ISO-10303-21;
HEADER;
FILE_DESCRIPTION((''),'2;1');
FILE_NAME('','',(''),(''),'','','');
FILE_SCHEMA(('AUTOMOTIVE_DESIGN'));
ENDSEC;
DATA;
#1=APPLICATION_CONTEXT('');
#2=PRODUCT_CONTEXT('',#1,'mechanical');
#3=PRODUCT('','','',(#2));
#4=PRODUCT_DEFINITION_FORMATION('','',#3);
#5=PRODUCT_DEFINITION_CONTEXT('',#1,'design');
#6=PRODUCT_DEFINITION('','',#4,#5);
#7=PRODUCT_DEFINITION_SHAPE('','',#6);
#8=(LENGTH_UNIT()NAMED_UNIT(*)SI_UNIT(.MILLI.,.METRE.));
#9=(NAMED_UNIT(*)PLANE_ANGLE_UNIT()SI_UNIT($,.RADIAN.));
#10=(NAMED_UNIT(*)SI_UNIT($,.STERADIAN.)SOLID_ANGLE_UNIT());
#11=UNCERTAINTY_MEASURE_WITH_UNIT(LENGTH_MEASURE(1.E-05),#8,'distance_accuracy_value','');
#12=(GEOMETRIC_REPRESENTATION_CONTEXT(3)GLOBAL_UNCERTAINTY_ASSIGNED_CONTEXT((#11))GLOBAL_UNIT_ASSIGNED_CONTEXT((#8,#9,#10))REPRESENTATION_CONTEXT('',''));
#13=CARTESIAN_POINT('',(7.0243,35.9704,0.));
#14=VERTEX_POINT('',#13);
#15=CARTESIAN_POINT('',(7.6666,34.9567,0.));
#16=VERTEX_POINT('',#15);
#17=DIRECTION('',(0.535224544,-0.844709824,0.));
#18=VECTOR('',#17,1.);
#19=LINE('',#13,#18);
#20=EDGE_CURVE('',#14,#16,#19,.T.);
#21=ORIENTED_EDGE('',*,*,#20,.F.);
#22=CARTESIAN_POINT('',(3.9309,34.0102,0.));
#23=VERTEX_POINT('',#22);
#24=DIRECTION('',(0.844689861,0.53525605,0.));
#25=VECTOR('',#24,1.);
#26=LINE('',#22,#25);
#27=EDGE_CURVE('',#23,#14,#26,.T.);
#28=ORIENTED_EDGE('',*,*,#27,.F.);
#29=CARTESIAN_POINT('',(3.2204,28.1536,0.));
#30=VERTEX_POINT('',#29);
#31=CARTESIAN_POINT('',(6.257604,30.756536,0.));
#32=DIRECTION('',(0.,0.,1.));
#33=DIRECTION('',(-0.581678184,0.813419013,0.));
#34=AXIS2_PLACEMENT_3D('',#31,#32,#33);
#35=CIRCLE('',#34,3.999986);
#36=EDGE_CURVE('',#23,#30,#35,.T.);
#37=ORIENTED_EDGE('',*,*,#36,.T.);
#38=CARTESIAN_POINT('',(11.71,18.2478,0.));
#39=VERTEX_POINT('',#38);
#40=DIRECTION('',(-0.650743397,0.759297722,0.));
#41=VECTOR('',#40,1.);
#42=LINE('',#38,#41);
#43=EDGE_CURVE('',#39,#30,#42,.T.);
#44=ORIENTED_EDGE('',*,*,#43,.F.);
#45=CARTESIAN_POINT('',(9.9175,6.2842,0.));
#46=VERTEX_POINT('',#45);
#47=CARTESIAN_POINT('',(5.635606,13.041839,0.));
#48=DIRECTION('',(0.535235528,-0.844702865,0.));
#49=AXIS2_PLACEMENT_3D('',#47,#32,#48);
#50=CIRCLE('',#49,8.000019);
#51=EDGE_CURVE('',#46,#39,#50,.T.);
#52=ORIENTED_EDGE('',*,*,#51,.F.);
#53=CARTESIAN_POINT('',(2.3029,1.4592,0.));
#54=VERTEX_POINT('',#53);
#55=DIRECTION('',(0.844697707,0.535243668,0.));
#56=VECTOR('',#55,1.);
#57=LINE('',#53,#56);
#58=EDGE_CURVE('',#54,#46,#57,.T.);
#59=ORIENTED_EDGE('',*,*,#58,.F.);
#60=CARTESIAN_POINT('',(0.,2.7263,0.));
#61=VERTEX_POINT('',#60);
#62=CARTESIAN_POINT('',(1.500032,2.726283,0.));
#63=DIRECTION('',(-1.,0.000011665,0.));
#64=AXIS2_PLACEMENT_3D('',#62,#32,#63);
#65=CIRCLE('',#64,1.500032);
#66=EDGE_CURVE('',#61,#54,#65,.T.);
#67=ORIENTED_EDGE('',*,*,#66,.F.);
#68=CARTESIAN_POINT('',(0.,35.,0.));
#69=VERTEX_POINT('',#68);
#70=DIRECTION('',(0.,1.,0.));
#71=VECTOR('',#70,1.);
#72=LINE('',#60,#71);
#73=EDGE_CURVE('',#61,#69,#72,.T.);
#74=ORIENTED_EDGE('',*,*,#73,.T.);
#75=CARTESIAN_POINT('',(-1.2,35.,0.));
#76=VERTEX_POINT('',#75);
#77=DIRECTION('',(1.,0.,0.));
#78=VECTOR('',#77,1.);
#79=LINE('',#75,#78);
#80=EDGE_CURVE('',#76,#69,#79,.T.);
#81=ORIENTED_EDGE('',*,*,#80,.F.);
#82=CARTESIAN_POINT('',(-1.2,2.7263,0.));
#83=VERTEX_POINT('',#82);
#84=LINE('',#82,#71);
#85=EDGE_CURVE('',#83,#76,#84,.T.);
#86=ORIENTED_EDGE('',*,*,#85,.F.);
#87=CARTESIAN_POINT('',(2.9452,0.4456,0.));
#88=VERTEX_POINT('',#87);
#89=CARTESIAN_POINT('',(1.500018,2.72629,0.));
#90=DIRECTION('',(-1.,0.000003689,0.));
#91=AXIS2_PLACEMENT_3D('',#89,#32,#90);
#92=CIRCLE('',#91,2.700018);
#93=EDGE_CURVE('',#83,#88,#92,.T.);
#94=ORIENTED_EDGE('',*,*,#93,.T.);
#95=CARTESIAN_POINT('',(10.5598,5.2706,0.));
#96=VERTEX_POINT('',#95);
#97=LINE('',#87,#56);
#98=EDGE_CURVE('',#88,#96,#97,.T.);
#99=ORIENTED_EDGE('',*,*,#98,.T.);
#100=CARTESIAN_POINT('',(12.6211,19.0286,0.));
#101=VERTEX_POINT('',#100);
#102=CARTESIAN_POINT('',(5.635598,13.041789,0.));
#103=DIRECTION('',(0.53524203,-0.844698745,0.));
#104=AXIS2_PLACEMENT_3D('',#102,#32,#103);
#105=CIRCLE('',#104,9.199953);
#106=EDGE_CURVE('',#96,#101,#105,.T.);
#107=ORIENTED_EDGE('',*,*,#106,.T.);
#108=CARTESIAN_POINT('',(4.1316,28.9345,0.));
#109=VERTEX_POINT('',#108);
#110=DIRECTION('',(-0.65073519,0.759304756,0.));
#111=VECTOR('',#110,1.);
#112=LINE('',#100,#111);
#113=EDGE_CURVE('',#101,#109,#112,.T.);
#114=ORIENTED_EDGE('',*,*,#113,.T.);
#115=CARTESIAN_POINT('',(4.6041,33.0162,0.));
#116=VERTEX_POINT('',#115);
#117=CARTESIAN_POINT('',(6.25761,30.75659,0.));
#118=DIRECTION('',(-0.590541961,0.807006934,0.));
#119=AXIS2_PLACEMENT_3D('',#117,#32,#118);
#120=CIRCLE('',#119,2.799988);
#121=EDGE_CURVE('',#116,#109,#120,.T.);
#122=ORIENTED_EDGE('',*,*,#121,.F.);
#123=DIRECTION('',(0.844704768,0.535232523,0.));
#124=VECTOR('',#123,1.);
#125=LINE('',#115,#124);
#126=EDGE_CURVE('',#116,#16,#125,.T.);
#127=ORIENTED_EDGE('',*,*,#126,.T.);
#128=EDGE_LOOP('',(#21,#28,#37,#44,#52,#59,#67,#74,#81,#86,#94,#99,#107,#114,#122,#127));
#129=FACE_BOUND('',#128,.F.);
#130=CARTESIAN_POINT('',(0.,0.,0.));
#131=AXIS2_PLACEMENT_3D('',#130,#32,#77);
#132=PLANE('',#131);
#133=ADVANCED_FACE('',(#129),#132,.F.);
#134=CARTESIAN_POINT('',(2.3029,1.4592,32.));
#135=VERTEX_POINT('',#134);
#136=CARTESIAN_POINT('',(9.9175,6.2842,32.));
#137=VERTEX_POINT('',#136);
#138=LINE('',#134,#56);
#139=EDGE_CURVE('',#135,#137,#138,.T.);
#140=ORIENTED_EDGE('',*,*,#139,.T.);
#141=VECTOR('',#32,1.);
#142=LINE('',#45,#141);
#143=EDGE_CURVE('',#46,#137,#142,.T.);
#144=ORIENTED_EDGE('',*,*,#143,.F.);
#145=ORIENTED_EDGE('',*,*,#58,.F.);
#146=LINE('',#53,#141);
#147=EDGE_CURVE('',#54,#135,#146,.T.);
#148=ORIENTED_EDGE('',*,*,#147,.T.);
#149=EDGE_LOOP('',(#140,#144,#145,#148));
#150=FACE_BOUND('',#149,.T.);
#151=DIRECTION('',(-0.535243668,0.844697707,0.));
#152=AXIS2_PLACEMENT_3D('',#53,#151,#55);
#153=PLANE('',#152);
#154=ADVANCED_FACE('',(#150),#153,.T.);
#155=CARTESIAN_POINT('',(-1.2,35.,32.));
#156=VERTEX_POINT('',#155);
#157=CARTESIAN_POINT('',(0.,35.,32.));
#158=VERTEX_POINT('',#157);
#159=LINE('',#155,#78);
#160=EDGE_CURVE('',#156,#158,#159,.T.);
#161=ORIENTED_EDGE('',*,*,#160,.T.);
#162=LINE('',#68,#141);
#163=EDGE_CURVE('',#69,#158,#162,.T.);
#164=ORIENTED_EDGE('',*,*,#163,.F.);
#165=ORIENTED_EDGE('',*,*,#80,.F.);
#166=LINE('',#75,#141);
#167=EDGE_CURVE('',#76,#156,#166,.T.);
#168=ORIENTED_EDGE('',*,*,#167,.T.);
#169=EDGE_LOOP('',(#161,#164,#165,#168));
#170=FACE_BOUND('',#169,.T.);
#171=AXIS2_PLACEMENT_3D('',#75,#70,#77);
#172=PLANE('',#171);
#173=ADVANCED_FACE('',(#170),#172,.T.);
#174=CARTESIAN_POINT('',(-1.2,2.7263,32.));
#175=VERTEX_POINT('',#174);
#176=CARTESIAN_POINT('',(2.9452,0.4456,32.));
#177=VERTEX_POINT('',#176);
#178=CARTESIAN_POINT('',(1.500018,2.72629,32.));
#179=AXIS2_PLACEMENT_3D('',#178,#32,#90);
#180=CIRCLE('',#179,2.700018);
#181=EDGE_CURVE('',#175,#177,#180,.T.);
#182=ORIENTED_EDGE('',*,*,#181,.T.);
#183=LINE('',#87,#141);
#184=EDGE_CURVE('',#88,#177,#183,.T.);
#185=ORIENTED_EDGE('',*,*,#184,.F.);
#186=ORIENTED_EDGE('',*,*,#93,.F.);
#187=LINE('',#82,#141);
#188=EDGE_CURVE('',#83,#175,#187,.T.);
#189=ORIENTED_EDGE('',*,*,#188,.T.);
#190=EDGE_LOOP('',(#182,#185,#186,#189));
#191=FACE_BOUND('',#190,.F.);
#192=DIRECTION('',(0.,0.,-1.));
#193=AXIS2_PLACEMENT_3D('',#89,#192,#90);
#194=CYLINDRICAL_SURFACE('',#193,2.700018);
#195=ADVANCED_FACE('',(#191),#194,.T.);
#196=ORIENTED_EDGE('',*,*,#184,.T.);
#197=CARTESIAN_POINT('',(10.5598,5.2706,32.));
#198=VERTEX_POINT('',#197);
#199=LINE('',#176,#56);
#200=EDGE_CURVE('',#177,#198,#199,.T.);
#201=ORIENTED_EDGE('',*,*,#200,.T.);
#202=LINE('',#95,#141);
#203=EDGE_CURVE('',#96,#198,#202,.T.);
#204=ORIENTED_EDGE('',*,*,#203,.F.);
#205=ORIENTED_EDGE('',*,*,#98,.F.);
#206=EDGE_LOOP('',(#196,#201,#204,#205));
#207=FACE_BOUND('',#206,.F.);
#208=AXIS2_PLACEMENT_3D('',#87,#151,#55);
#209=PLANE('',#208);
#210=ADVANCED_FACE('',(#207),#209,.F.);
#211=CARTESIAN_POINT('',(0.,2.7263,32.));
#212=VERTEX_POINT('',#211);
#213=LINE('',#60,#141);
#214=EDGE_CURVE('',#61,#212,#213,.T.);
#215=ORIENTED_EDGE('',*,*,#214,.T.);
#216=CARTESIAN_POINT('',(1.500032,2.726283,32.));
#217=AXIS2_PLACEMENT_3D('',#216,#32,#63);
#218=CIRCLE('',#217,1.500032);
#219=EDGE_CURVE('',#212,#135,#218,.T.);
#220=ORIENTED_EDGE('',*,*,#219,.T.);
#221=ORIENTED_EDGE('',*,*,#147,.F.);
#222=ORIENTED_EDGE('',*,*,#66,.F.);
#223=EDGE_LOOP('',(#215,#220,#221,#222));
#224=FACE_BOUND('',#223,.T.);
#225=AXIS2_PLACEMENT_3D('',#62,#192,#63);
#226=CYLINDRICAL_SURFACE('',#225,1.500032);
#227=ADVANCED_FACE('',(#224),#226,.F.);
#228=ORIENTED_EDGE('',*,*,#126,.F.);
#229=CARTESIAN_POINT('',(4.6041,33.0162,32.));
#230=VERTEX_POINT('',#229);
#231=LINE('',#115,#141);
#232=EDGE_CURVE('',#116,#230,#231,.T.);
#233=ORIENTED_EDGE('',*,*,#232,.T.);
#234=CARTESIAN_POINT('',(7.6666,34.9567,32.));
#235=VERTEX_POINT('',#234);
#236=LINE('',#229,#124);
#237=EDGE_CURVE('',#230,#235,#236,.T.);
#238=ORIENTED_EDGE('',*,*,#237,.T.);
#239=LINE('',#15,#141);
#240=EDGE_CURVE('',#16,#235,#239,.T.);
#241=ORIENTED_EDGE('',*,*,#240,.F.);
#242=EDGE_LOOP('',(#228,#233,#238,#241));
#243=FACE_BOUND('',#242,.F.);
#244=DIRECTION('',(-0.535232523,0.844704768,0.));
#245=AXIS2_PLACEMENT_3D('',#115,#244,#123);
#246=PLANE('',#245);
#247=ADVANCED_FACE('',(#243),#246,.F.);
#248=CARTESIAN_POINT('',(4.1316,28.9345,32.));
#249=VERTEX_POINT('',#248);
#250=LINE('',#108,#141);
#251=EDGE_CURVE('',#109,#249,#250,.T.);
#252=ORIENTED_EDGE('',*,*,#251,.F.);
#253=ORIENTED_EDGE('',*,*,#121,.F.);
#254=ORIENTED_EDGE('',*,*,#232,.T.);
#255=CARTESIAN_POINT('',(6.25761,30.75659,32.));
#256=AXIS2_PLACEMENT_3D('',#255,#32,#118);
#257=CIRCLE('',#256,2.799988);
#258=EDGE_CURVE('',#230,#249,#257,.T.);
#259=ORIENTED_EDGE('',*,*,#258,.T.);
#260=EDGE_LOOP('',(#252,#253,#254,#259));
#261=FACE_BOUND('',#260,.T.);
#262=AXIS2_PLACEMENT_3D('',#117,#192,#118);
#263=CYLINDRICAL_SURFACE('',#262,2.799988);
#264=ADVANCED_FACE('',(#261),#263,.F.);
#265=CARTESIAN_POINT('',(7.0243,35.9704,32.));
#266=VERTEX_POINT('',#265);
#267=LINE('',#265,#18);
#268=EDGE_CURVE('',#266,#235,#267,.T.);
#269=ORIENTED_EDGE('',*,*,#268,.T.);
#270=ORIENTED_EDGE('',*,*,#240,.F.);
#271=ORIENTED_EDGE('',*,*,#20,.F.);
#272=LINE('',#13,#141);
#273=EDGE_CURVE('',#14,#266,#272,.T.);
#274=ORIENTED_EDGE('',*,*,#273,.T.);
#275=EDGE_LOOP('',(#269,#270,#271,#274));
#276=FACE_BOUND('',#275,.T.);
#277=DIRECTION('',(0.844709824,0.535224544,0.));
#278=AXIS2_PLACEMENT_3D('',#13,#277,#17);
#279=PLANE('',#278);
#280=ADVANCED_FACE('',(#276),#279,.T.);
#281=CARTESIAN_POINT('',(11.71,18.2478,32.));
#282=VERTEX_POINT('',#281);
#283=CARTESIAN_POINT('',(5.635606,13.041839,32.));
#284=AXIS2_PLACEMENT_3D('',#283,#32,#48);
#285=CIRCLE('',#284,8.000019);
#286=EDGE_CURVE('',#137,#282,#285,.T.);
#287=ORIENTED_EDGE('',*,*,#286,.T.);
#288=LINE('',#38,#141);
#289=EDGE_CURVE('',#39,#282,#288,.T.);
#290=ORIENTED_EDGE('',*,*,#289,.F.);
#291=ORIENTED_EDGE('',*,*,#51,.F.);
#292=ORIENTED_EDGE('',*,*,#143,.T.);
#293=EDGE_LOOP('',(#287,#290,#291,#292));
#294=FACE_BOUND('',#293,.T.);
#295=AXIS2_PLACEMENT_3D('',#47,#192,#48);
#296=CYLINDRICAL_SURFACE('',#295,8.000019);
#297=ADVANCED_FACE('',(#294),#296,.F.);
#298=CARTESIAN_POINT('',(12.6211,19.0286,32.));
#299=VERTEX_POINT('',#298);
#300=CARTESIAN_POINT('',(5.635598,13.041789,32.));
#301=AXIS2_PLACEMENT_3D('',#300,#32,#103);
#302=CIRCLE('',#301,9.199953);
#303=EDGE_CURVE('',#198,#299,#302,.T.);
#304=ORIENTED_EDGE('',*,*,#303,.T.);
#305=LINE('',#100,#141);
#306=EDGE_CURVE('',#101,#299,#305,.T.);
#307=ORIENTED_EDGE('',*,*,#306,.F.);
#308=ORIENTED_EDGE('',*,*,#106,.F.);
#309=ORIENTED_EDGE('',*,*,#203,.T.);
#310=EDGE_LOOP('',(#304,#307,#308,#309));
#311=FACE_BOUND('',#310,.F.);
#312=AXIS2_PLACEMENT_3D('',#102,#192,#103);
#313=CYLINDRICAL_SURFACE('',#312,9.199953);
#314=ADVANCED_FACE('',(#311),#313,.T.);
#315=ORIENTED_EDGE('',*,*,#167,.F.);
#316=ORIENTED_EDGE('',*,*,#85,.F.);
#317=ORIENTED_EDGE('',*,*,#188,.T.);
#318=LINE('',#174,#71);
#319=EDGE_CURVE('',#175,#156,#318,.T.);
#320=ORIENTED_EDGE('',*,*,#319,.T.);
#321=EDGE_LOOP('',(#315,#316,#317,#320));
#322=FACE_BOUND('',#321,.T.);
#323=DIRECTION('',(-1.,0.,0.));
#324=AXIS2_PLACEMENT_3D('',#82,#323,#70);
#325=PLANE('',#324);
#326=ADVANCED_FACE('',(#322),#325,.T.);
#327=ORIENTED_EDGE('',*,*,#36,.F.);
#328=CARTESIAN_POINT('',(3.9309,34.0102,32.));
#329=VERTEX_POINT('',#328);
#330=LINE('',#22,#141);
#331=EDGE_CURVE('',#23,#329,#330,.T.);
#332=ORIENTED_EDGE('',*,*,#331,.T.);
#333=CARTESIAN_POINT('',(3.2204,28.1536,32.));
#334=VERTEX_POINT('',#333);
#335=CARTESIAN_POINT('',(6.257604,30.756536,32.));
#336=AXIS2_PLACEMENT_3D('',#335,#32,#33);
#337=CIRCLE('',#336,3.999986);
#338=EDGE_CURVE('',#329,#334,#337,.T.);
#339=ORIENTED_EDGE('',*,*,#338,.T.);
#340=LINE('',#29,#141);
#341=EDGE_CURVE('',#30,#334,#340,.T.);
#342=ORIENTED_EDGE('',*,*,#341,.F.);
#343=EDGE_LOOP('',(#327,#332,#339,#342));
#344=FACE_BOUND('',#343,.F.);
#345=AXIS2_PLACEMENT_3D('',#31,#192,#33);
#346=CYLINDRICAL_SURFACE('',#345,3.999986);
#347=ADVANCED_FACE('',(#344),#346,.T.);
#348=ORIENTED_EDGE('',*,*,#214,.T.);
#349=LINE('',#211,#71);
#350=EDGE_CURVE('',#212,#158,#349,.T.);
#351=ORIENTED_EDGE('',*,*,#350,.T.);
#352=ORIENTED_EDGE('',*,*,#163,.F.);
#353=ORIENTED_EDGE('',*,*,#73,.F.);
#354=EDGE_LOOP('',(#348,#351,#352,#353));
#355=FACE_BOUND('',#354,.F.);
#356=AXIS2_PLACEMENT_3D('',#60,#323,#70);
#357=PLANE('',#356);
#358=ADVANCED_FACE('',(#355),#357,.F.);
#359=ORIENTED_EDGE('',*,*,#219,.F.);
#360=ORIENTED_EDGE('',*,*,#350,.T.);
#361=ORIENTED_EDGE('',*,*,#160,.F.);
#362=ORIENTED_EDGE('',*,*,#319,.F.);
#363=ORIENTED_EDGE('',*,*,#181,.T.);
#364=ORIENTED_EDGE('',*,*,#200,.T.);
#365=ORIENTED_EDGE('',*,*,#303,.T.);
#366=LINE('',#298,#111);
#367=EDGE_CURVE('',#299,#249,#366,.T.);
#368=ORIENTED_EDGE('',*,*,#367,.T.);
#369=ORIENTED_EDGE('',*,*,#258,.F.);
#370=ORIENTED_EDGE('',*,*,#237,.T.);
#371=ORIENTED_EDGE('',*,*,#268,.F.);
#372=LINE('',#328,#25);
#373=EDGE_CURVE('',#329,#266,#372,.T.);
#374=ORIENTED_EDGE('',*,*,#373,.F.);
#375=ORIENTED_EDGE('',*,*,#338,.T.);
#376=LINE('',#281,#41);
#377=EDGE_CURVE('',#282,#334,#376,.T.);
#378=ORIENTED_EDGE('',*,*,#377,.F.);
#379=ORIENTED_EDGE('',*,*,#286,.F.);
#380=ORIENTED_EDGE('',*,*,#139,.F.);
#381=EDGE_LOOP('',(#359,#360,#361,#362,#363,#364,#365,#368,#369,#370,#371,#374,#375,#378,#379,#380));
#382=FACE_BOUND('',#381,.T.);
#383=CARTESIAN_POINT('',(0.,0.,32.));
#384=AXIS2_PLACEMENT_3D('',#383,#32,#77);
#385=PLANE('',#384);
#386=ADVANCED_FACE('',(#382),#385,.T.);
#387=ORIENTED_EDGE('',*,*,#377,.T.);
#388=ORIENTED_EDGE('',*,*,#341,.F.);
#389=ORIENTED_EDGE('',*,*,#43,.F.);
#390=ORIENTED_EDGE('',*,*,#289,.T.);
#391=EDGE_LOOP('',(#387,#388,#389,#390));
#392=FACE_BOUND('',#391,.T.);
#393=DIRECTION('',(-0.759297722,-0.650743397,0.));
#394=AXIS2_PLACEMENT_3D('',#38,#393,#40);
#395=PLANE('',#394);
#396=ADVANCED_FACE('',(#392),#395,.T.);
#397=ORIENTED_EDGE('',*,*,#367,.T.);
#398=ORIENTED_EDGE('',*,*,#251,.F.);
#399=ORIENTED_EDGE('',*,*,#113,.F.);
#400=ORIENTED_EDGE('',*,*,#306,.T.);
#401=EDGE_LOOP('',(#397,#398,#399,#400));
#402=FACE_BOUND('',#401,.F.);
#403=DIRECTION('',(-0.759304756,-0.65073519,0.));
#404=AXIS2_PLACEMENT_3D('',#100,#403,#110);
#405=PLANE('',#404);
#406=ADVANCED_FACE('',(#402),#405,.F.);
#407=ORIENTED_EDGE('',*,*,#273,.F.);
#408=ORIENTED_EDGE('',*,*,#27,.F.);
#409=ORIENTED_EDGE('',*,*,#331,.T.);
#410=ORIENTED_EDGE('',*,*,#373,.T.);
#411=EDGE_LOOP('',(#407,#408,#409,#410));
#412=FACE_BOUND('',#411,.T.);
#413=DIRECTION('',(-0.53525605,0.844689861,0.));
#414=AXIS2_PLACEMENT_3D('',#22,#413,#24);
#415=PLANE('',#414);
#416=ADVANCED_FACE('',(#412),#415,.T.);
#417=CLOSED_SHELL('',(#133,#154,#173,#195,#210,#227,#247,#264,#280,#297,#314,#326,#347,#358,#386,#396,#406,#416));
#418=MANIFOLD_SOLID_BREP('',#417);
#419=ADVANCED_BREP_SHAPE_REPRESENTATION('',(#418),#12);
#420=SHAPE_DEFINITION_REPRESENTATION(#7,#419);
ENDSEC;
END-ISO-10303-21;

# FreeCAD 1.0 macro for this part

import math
import FreeCAD as App
import Part
import Sketcher
from FreeCAD import Vector
Q = App.Units.Quantity

doc = App.newDocument("Part")
body = doc.addObject("PartDesign::Body", "Body")

# Sketch on XY plane
sketch1 = body.newObject("Sketcher::SketchObject", "Sketch")
sketch1.AttachmentSupport = (doc.getObject("XY_Plane"), [""])
sketch1.MapMode = "FlatFace"
sketch1.addGeometry(Part.ArcOfCircle(Part.Circle(Vector(1.5, 2.7263, 0), Vector(0, 0, 1), 1.5), math.radians(180), math.radians(302.360458)), False)
sketch1.addGeometry(Part.LineSegment(Vector(0, 2.7263, 0), Vector(0, 35, 0)), False)
sketch1.addGeometry(Part.LineSegment(Vector(0, 35, 0), Vector(-1.2, 35, 0)), False)
sketch1.addGeometry(Part.LineSegment(Vector(-1.2, 35, 0), Vector(-1.2, 2.7263, 0)), False)
sketch1.addGeometry(Part.ArcOfCircle(Part.Circle(Vector(1.5, 2.7263, 0), Vector(0, 0, 1), 2.7), math.radians(180), math.radians(302.361009)), False)
sketch1.addGeometry(Part.LineSegment(Vector(2.9452, 0.4456, 0), Vector(10.5598, 5.2706, 0)), False)
sketch1.addGeometry(Part.ArcOfCircle(Part.Circle(Vector(5.6356, 13.0418, 0), Vector(0, 0, 1), 9.199962), math.radians(-57.639719), math.radians(40.597647)), False)
sketch1.addGeometry(Part.LineSegment(Vector(12.6211, 19.0286, 0), Vector(4.1316, 28.9345, 0)), False)
sketch1.addGeometry(Part.ArcOfCircle(Part.Circle(Vector(6.2576, 30.7565, 0), Vector(0, 0, 1), 2.800055), math.radians(126.194214), math.radians(220.596856)), False)
sketch1.addGeometry(Part.LineSegment(Vector(4.6041, 33.0162, 0), Vector(7.6666, 34.9567, 0)), False)
sketch1.addGeometry(Part.LineSegment(Vector(7.6666, 34.9567, 0), Vector(7.0243, 35.9704, 0)), False)
sketch1.addGeometry(Part.LineSegment(Vector(7.0243, 35.9704, 0), Vector(3.9309, 34.0102, 0)), False)
sketch1.addGeometry(Part.ArcOfCircle(Part.Circle(Vector(6.2576, 30.7565, 0), Vector(0, 0, 1), 4.000012), math.radians(125.568316), math.radians(220.596789)), False)
sketch1.addGeometry(Part.LineSegment(Vector(3.2204, 28.1536, 0), Vector(11.71, 18.2478, 0)), False)
sketch1.addGeometry(Part.ArcOfCircle(Part.Circle(Vector(5.6356, 13.0418, 0), Vector(0, 0, 1), 7.999989), math.radians(-57.639931), math.radians(40.597877)), False)
sketch1.addGeometry(Part.LineSegment(Vector(9.9175, 6.2842, 0), Vector(2.3029, 1.4592, 0)), False)
sketch1.addConstraint(Sketcher.Constraint("Coincident", 0, 1, 1, 1))
sketch1.addConstraint(Sketcher.Constraint("Coincident", 1, 2, 2, 1))
sketch1.addConstraint(Sketcher.Constraint("Coincident", 2, 2, 3, 1))
sketch1.addConstraint(Sketcher.Constraint("Coincident", 3, 2, 4, 1))
sketch1.addConstraint(Sketcher.Constraint("Coincident", 4, 2, 5, 1))
sketch1.addConstraint(Sketcher.Constraint("Coincident", 5, 2, 6, 1))
sketch1.addConstraint(Sketcher.Constraint("Coincident", 6, 2, 7, 1))
sketch1.addConstraint(Sketcher.Constraint("Coincident", 7, 2, 8, 2))
sketch1.addConstraint(Sketcher.Constraint("Coincident", 8, 1, 9, 1))
sketch1.addConstraint(Sketcher.Constraint("Coincident", 9, 2, 10, 1))
sketch1.addConstraint(Sketcher.Constraint("Coincident", 10, 2, 11, 1))
sketch1.addConstraint(Sketcher.Constraint("Coincident", 11, 2, 12, 1))
sketch1.addConstraint(Sketcher.Constraint("Coincident", 12, 2, 13, 1))
sketch1.addConstraint(Sketcher.Constraint("Coincident", 13, 2, 14, 2))
sketch1.addConstraint(Sketcher.Constraint("Coincident", 14, 1, 15, 1))
sketch1.addConstraint(Sketcher.Constraint("Coincident", 15, 2, 0, 2))
sketch1.addConstraint(Sketcher.Constraint("Vertical", 1))
sketch1.addConstraint(Sketcher.Constraint("Horizontal", 2))
sketch1.addConstraint(Sketcher.Constraint("Vertical", 3))
sketch1.addConstraint(Sketcher.Constraint("Coincident", 4, 3, 0, 3))
sketch1.addConstraint(Sketcher.Constraint("Coincident", 12, 3, 8, 3))
sketch1.addConstraint(Sketcher.Constraint("Coincident", 14, 3, 6, 3))
sketch1.addConstraint(Sketcher.Constraint("PointOnObject", 0, 1, -2))
sketch1.addConstraint(Sketcher.Constraint("Radius", 12, Q("4 mm")))
sketch1.addConstraint(Sketcher.Constraint("Radius", 14, Q("8 mm")))
sketch1.addConstraint(Sketcher.Constraint("Radius", 0, Q("1.5 mm")))
sketch1.addConstraint(Sketcher.Constraint("DistanceX", 2, 2, 2, 1, Q("1.2 mm")))
sketch1.addConstraint(Sketcher.Constraint("DistanceY", -1, 1, 1, 2, Q("35 mm")))
sketch1.addConstraint(Sketcher.Constraint("Distance", 10, Q("1.2 mm")))
sketch1.addConstraint(Sketcher.Constraint("Radius", 6, Q("9.2 mm")))
sketch1.addConstraint(Sketcher.Constraint("Radius", 8, Q("2.8 mm")))
sketch1.addConstraint(Sketcher.Constraint("DistanceX", -1, 1, 13, 2, Q("11.71 mm")))
sketch1.addConstraint(Sketcher.Constraint("Distance", 7, Q("13.046 mm")))
sketch1.addConstraint(Sketcher.Constraint("Distance", 13, Q("13.046 mm")))
sketch1.addConstraint(Sketcher.Constraint("DistanceY", 1, 1, 1, 2, Q("32.2737 mm")))
sketch1.addConstraint(Sketcher.Constraint("DistanceY", 3, 2, 3, 1, Q("32.2737 mm")))
sketch1.addConstraint(Sketcher.Constraint("DistanceX", -1, 1, 6, 2, Q("12.621 mm")))
sketch1.addConstraint(Sketcher.Constraint("DistanceX", -1, 1, 8, 1, Q("4.604 mm")))
sketch1.addConstraint(Sketcher.Constraint("DistanceX", -1, 1, 11, 2, Q("3.931 mm")))
sketch1.addConstraint(Sketcher.Constraint("DistanceX", -1, 1, 15, 2, Q("2.303 mm")))
sketch1.addConstraint(Sketcher.Constraint("DistanceX", 6, 3, 8, 3, Q("0.622 mm")))
sketch1.addConstraint(Sketcher.Constraint("DistanceY", 4, 2, 5, 2, Q("4.825 mm")))
sketch1.addConstraint(Sketcher.Constraint("DistanceY", 6, 2, 8, 3, Q("11.728 mm")))
sketch1.addConstraint(Sketcher.Constraint("DistanceY", 5, 2, 6, 2, Q("13.758 mm")))
sketch1.addConstraint(Sketcher.Constraint("DistanceX", 7, 2, 8, 3, Q("2.126 mm")))
sketch1.addConstraint(Sketcher.Constraint("DistanceX", 8, 3, 9, 2, Q("1.409 mm")))
sketch1.addConstraint(Sketcher.Constraint("DistanceY", 8, 3, 10, 2, Q("5.214 mm")))
sketch1.addConstraint(Sketcher.Constraint("DistanceX", 6, 3, 14, 1, Q("4.282 mm")))
sketch1.addConstraint(Sketcher.Constraint("DistanceY", 0, 3, 14, 1, Q("3.558 mm")))
sketch1.addConstraint(Sketcher.Constraint("DistanceY", 15, 2, 0, 1, Q("1.267 mm")))
sketch1.addConstraint(Sketcher.Constraint("Distance", 9, Q("3.6255 mm")))
pad1 = body.newObject("PartDesign::Pad", "Pad")
pad1.Profile = sketch1
pad1.Length = 32

doc.recompute()
